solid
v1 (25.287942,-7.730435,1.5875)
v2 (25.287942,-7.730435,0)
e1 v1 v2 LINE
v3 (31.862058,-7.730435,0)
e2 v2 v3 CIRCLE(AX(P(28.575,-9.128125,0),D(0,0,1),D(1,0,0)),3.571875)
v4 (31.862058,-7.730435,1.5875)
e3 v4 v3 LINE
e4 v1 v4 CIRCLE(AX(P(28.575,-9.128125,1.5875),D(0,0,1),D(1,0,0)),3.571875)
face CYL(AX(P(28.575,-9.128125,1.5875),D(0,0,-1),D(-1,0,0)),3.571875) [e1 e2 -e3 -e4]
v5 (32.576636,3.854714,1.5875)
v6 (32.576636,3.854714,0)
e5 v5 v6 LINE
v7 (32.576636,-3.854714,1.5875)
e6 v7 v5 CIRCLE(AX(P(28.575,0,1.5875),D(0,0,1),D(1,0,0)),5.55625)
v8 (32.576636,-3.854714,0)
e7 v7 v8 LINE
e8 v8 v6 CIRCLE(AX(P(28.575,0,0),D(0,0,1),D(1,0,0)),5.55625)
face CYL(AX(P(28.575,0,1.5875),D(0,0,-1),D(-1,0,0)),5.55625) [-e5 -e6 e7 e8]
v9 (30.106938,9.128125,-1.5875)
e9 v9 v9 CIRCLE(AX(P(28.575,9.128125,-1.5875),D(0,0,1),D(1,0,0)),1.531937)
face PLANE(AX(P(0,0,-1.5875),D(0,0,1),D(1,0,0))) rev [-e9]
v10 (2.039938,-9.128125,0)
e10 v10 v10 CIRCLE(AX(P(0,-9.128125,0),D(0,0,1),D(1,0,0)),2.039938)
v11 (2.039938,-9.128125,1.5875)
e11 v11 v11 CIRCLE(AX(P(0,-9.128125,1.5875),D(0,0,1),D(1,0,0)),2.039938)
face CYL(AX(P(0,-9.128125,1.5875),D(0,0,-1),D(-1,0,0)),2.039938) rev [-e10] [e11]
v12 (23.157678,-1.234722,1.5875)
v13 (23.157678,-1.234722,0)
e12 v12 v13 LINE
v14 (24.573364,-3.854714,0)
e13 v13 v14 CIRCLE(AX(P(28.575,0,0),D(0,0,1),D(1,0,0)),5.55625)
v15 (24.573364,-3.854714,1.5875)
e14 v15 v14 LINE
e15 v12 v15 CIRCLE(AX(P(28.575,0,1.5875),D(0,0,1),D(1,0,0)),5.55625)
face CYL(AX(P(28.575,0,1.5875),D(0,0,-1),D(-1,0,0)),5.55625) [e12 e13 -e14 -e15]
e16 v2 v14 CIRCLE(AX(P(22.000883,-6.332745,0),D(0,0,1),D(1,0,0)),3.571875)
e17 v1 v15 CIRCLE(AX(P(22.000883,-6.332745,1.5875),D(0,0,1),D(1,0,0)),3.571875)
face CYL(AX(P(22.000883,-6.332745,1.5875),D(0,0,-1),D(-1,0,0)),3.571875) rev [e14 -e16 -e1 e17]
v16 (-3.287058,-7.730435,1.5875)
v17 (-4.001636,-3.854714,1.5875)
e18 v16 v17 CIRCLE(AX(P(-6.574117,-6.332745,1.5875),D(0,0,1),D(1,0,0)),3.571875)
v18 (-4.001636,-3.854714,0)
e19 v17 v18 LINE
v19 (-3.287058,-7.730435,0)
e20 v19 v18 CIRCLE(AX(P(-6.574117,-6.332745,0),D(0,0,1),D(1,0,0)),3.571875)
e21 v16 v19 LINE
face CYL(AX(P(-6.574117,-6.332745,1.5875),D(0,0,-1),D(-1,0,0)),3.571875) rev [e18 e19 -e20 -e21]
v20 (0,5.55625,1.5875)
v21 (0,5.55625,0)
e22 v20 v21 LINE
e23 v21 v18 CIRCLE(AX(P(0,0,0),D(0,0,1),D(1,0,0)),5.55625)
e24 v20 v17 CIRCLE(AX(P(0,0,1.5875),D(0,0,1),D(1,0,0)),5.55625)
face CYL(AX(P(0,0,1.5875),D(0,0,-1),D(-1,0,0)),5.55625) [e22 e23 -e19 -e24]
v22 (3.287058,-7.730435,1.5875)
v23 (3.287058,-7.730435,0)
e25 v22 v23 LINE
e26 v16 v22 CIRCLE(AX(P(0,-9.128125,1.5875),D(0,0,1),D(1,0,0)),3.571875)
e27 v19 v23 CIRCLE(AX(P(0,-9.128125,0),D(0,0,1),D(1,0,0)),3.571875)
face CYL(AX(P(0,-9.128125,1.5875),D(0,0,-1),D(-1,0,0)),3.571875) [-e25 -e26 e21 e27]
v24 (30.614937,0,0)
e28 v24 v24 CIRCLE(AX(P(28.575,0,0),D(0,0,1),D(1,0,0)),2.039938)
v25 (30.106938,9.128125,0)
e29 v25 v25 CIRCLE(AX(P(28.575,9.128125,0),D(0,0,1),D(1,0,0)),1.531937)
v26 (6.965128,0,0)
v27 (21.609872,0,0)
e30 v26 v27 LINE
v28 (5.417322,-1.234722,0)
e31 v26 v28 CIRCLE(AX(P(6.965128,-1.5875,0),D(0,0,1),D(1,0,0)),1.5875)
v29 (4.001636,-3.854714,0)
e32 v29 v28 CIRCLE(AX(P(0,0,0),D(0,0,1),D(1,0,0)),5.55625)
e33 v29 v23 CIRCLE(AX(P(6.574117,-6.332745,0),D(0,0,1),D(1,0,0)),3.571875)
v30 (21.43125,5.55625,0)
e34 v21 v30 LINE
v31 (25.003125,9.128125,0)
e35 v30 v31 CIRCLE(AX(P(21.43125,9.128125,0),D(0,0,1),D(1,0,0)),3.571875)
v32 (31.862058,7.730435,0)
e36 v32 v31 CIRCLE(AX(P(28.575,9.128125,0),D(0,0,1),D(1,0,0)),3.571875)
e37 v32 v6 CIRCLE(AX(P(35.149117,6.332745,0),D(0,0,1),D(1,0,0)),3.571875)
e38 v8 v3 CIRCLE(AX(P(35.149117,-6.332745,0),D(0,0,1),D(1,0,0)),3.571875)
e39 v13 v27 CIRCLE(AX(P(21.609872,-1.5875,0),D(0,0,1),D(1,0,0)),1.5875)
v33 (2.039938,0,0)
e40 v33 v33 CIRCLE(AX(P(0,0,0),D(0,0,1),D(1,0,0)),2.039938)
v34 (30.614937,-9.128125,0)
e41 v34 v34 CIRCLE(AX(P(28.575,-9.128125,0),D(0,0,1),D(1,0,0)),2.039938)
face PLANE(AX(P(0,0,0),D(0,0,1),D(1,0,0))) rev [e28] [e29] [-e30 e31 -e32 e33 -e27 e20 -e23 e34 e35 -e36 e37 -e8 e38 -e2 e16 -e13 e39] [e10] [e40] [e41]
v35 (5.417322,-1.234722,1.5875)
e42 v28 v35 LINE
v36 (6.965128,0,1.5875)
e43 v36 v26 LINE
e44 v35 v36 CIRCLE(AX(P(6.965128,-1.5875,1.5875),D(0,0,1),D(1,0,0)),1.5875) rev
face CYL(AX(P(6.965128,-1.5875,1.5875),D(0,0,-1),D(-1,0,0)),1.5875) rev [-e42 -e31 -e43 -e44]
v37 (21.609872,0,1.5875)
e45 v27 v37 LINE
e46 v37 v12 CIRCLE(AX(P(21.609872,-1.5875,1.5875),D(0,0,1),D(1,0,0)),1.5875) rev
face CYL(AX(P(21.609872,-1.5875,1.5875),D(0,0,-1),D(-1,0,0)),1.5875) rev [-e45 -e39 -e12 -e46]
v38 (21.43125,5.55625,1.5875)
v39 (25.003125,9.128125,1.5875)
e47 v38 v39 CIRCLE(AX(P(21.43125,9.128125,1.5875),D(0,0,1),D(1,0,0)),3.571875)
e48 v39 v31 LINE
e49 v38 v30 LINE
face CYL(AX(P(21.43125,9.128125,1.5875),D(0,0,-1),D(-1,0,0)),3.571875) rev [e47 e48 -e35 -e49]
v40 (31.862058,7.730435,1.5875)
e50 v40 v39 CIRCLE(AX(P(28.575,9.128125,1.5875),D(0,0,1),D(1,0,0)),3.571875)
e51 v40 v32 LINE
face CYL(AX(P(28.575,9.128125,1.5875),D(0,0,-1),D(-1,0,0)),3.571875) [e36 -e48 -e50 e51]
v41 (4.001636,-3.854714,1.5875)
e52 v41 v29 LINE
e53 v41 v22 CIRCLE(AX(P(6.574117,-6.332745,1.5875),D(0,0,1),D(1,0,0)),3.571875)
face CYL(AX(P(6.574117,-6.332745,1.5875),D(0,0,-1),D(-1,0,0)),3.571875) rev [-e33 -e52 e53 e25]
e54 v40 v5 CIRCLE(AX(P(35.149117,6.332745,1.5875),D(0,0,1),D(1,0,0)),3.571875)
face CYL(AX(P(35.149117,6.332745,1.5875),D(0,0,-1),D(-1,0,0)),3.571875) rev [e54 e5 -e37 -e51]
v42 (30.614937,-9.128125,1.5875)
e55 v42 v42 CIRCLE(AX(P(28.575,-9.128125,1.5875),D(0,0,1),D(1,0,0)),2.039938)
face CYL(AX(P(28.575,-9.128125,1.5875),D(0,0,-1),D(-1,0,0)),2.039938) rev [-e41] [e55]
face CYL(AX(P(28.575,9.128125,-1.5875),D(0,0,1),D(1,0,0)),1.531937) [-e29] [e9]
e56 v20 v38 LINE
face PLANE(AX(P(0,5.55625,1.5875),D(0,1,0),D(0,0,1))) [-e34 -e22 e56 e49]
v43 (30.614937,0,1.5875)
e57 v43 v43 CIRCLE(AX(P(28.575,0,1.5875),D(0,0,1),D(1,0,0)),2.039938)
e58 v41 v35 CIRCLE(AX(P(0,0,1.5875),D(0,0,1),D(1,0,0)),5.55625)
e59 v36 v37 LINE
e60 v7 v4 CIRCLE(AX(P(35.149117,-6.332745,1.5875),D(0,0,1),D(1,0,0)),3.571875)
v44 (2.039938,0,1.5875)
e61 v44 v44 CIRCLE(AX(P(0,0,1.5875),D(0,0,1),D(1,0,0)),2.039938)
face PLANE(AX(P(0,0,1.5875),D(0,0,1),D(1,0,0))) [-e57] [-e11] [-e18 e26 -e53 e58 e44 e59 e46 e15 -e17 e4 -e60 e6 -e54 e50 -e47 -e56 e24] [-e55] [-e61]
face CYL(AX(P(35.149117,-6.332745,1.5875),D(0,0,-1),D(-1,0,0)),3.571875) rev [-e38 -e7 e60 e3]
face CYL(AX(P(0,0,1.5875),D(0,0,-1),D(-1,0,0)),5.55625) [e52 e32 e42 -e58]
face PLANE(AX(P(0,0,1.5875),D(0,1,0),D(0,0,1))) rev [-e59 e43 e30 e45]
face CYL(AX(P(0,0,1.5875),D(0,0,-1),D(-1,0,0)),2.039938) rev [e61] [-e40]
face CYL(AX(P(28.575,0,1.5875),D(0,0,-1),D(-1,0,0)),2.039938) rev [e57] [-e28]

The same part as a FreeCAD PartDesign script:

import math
import FreeCAD as App
import Part
import Sketcher
Q = App.Units.Quantity


def edges_at(feature, points):
    """Names of the edges that pass closest to the given points."""
    edges = feature.Shape.Edges
    near = lambda p: min(range(len(edges)), key=lambda i: edges[i].distToShape(Part.Vertex(*p))[0])
    return sorted({f"Edge{near(p) + 1}" for p in points})

doc = App.newDocument("Part")
params = doc.addObject("Spreadsheet::Sheet", "Params")
for row, (alias, value) in enumerate([
    ("sketch1_radius", "0.21875 in"),
    ("sketch1_radius2", "0.140625 in"),
    ("sketch1_width", "0.6875 in"),
    ("pad1_length", "0.0625 in"),
    ("pad2_length", "0.0625 in"),
    ("pad2_length2", "0.0625 in"),
    ("fillet_radius", "0.0625 in"),
], start=1):
    params.set(f"A{row}", alias)
    params.set(f"B{row}", "=" + value)
    params.setAlias(f"B{row}", alias)

body = doc.addObject("PartDesign::Body", "Body")

# Sketch on XY plane
sketch1 = body.newObject("Sketcher::SketchObject", "Sketch")
sketch1.AttachmentSupport = (doc.getObject("XY_Plane"), [""])
sketch1.MapMode = "FlatFace"
sketch1.addGeometry(Part.ArcOfCircle(Part.Circle(App.Vector(0, 0, 0), App.Vector(0, 0, 1), 5.6), math.radians(90), math.radians(224)), False)
sketch1.addGeometry(Part.ArcOfCircle(Part.Circle(App.Vector(-6.6, -6.3, 0), App.Vector(0, 0, 1), 3.6), math.radians(-23), math.radians(44)), False)
sketch1.addGeometry(Part.ArcOfCircle(Part.Circle(App.Vector(0, -9.1, 0), App.Vector(0, 0, 1), 3.6), math.radians(157), math.radians(383)), False)
sketch1.addGeometry(Part.ArcOfCircle(Part.Circle(App.Vector(6.6, -6.3, 0), App.Vector(0, 0, 1), 3.6), math.radians(136), math.radians(203)), False)
sketch1.addGeometry(Part.ArcOfCircle(Part.Circle(App.Vector(0, 0, 0), App.Vector(0, 0, 1), 5.6), math.radians(-44), math.radians(0)), False)
sketch1.addGeometry(Part.LineSegment(App.Vector(5.6, 0, 0), App.Vector(23, 0, 0)), False)
sketch1.addGeometry(Part.ArcOfCircle(Part.Circle(App.Vector(28.6, 0, 0), App.Vector(0, 0, 1), 5.6), math.radians(-180), math.radians(-136)), False)
sketch1.addGeometry(Part.ArcOfCircle(Part.Circle(App.Vector(22, -6.3, 0), App.Vector(0, 0, 1), 3.6), math.radians(-23), math.radians(44)), False)
sketch1.addGeometry(Part.ArcOfCircle(Part.Circle(App.Vector(28.6, -9.1, 0), App.Vector(0, 0, 1), 3.6), math.radians(157), math.radians(383)), False)
sketch1.addGeometry(Part.ArcOfCircle(Part.Circle(App.Vector(35.1, -6.3, 0), App.Vector(0, 0, 1), 3.6), math.radians(136), math.radians(203)), False)
sketch1.addGeometry(Part.ArcOfCircle(Part.Circle(App.Vector(28.6, 0, 0), App.Vector(0, 0, 1), 5.6), math.radians(-44), math.radians(44)), False)
sketch1.addGeometry(Part.ArcOfCircle(Part.Circle(App.Vector(35.1, 6.3, 0), App.Vector(0, 0, 1), 3.6), math.radians(157), math.radians(224)), False)
sketch1.addGeometry(Part.ArcOfCircle(Part.Circle(App.Vector(28.6, 9.1, 0), App.Vector(0, 0, 1), 3.6), math.radians(-23), math.radians(180)), False)
sketch1.addGeometry(Part.ArcOfCircle(Part.Circle(App.Vector(21.4, 9.1, 0), App.Vector(0, 0, 1), 3.6), math.radians(-90), math.radians(0)), False)
sketch1.addGeometry(Part.LineSegment(App.Vector(21.4, 5.6, 0), App.Vector(0, 5.6, 0)), False)
sketch1.addGeometry(Part.Circle(App.Vector(0, -9.1, 0), App.Vector(0, 0, 1), 2), False)
sketch1.addGeometry(Part.Circle(App.Vector(28.6, -9.1, 0), App.Vector(0, 0, 1), 2), False)
sketch1.addGeometry(Part.Circle(App.Vector(0, 0, 0), App.Vector(0, 0, 1), 2), False)
sketch1.addGeometry(Part.Circle(App.Vector(28.6, 0, 0), App.Vector(0, 0, 1), 2), False)
sketch1.addGeometry(Part.Circle(App.Vector(28.6, 9.1, 0), App.Vector(0, 0, 1), 1.5), False)
sketch1.addConstraint(Sketcher.Constraint("Tangent", 0, 2, 1, 2))
sketch1.addConstraint(Sketcher.Constraint("Tangent", 1, 1, 2, 1))
sketch1.addConstraint(Sketcher.Constraint("Tangent", 2, 2, 3, 2))
sketch1.addConstraint(Sketcher.Constraint("Tangent", 3, 1, 4, 1))
sketch1.addConstraint(Sketcher.Constraint("Coincident", 4, 2, 5, 1))
sketch1.addConstraint(Sketcher.Constraint("Coincident", 5, 2, 6, 1))
sketch1.addConstraint(Sketcher.Constraint("Tangent", 6, 2, 7, 2))
sketch1.addConstraint(Sketcher.Constraint("Tangent", 7, 1, 8, 1))
sketch1.addConstraint(Sketcher.Constraint("Tangent", 8, 2, 9, 2))
sketch1.addConstraint(Sketcher.Constraint("Tangent", 9, 1, 10, 1))
sketch1.addConstraint(Sketcher.Constraint("Tangent", 10, 2, 11, 2))
sketch1.addConstraint(Sketcher.Constraint("Tangent", 11, 1, 12, 1))
sketch1.addConstraint(Sketcher.Constraint("Tangent", 12, 2, 13, 2))
sketch1.addConstraint(Sketcher.Constraint("Tangent", 13, 1, 14, 1))
sketch1.addConstraint(Sketcher.Constraint("Tangent", 14, 2, 0, 1))
sketch1.addConstraint(Sketcher.Constraint("Horizontal", 5))
sketch1.addConstraint(Sketcher.Constraint("Horizontal", 14))
sketch1.addConstraint(Sketcher.Constraint("Coincident", 0, 3, -1, 1))
sketch1.addConstraint(Sketcher.Constraint("Coincident", 4, 3, -1, 1))
sketch1.addConstraint(Sketcher.Constraint("Coincident", 17, 3, -1, 1))
sketch1.addConstraint(Sketcher.Constraint("Coincident", 10, 3, 6, 3))
sketch1.addConstraint(Sketcher.Constraint("Coincident", 15, 3, 2, 3))
sketch1.addConstraint(Sketcher.Constraint("Coincident", 16, 3, 8, 3))
sketch1.addConstraint(Sketcher.Constraint("Coincident", 18, 3, 6, 3))
sketch1.addConstraint(Sketcher.Constraint("Coincident", 19, 3, 12, 3))
sketch1.addConstraint(Sketcher.Constraint("Equal", 1, 2))
sketch1.addConstraint(Sketcher.Constraint("Equal", 2, 3))
sketch1.addConstraint(Sketcher.Constraint("Equal", 0, 4))
sketch1.addConstraint(Sketcher.Constraint("Equal", 4, 6))
sketch1.addConstraint(Sketcher.Constraint("Equal", 3, 7))
sketch1.addConstraint(Sketcher.Constraint("Equal", 7, 8))
sketch1.addConstraint(Sketcher.Constraint("Equal", 8, 9))
sketch1.addConstraint(Sketcher.Constraint("Equal", 6, 10))
sketch1.addConstraint(Sketcher.Constraint("Equal", 9, 11))
sketch1.addConstraint(Sketcher.Constraint("Equal", 11, 12))
sketch1.addConstraint(Sketcher.Constraint("Equal", 12, 13))
sketch1.addConstraint(Sketcher.Constraint("Equal", 15, 16))
sketch1.addConstraint(Sketcher.Constraint("Equal", 16, 17))
sketch1.addConstraint(Sketcher.Constraint("Equal", 17, 18))
sketch1.addConstraint(Sketcher.Constraint("Symmetric", 9, 3, 11, 3, -1))
sketch1.addConstraint(Sketcher.Constraint("PointOnObject", 2, 3, -2))
sketch1.addConstraint(Sketcher.Constraint("PointOnObject", 4, 2, -1))
sketch1.addConstraint(Sketcher.Constraint("Horizontal", 3, 3, 7, 3))
sketch1.addConstraint(Sketcher.Constraint("Horizontal", 2, 3, 8, 3))
sketch1.addConstraint(Sketcher.Constraint("Horizontal", 12, 3, 13, 3))
sketch1.addConstraint(Sketcher.Constraint("Vertical", 10, 3, 12, 3))
sketch1.addConstraint(Sketcher.Constraint("Radius", 0, Q("0.21875 in")))
sketch1.addConstraint(Sketcher.Constraint("Radius", 1, Q("0.140625 in")))
sketch1.addConstraint(Sketcher.Constraint("DistanceX", 5, 1, 5, 2, Q("0.6875 in")))
sketch1.addConstraint(Sketcher.Constraint("Diameter", 15, Q("4.079875 mm")))
sketch1.addConstraint(Sketcher.Constraint("Diameter", 19, Q("3.063875 mm")))
sketch1.setExpression("Constraints[46]", "Params.sketch1_radius")
sketch1.setExpression("Constraints[47]", "Params.sketch1_radius2")
sketch1.setExpression("Constraints[48]", "Params.sketch1_width")
pad1 = body.newObject("PartDesign::Pad", "Pad")
pad1.Profile = sketch1
pad1.setExpression("Length", "Params.pad1_length")

# Sketch on XY plane
sketch2 = body.newObject("Sketcher::SketchObject", "Sketch001")
sketch2.AttachmentSupport = (doc.getObject("XY_Plane"), [""])
sketch2.MapMode = "FlatFace"
sketch2.addGeometry(Part.Circle(App.Vector(28.6, 9.1, 0), App.Vector(0, 0, 1), 1.5), False)
sketch2.addConstraint(Sketcher.Constraint("DistanceX", -1, 1, 0, 3, Q("1.125 in")))
sketch2.addConstraint(Sketcher.Constraint("DistanceY", -1, 1, 0, 3, Q("0.359375 in")))
sketch2.addConstraint(Sketcher.Constraint("Diameter", 0, Q("3.063875 mm")))
pad2 = body.newObject("PartDesign::Pad", "Pad001")
pad2.Profile = sketch2
pad2.Type = "TwoLengths"
pad2.setExpression("Length", "Params.pad2_length")
pad2.setExpression("Length2", "Params.pad2_length2")
doc.recompute()

fillet = body.newObject("PartDesign::Fillet", "Fillet")
fillet.Base = (pad2, edges_at(pad2, [(23.019, 0, 0.794), (5.556, 0, 0.794)]))
fillet.setExpression("Radius", "Params.fillet_radius")

doc.recompute()
